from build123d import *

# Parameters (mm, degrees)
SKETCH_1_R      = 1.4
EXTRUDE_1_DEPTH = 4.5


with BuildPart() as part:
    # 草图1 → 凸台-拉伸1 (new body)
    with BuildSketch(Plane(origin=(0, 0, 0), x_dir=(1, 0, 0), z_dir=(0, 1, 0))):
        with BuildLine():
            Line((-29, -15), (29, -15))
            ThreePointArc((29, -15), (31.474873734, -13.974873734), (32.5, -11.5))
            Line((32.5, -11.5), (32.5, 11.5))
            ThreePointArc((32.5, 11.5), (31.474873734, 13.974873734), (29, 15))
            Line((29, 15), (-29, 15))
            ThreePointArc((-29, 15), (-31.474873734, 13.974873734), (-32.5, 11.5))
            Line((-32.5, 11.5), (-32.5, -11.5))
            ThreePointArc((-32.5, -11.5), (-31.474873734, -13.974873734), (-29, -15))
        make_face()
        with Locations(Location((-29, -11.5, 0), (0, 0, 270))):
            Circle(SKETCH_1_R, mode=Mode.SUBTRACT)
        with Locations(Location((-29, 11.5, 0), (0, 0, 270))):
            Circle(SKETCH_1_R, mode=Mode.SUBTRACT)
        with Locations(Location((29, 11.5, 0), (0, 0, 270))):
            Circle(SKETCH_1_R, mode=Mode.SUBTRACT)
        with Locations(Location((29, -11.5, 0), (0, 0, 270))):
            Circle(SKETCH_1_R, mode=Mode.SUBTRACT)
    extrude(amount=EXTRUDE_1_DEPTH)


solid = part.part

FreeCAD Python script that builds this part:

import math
import FreeCAD as App
import Part
import Sketcher

V = App.Vector
Q = App.Units.Quantity

doc = App.newDocument("Part")
params = doc.addObject("Spreadsheet::Sheet", "Params")
for row, (alias, value) in enumerate([
    ("sketch1_diameter", "2.8 mm"),
    ("sketch1_radius", "3.5 mm"),
    ("sketch1_width", "58 mm"),
    ("sketch1_height", "23 mm"),
    ("pad1_length", "4.5 mm"),
], start=1):
    params.set(f"A{row}", alias)
    params.set(f"B{row}", "=" + value)
    params.setAlias(f"B{row}", alias)

body = doc.addObject("PartDesign::Body", "Body")

sketch1 = body.newObject("Sketcher::SketchObject", "Sketch")
sketch1.AttachmentSupport = (doc.getObject("XZ_Plane"), [""])
sketch1.MapMode = "FlatFace"
sketch1.addGeometry(Part.LineSegment(V(-29, 15, 0), V(29, 15, 0)), False)
sketch1.addGeometry(Part.ArcOfCircle(Part.Circle(V(29, 11.5, 0), V(0, 0, 1), 3.5), math.radians(0), math.radians(90)), False)
sketch1.addGeometry(Part.LineSegment(V(32.5, 11.5, 0), V(32.5, -11.5, 0)), False)
sketch1.addGeometry(Part.ArcOfCircle(Part.Circle(V(29, -11.5, 0), V(0, 0, 1), 3.5), math.radians(-90), math.radians(0)), False)
sketch1.addGeometry(Part.LineSegment(V(29, -15, 0), V(-29, -15, 0)), False)
sketch1.addGeometry(Part.ArcOfCircle(Part.Circle(V(-29, -11.5, 0), V(0, 0, 1), 3.5), math.radians(-180), math.radians(-90)), False)
sketch1.addGeometry(Part.LineSegment(V(-32.5, -11.5, 0), V(-32.5, 11.5, 0)), False)
sketch1.addGeometry(Part.ArcOfCircle(Part.Circle(V(-29, 11.5, 0), V(0, 0, 1), 3.5), math.radians(90), math.radians(180)), False)
sketch1.addGeometry(Part.Circle(V(-29, 11.5, 0), V(0, 0, 1), 1.4), False)
sketch1.addGeometry(Part.Circle(V(29, 11.5, 0), V(0, 0, 1), 1.4), False)
sketch1.addGeometry(Part.Circle(V(-29, -11.5, 0), V(0, 0, 1), 1.4), False)
sketch1.addGeometry(Part.Circle(V(29, -11.5, 0), V(0, 0, 1), 1.4), False)
sketch1.addConstraint(Sketcher.Constraint("Tangent", 0, 2, 1, 2))
sketch1.addConstraint(Sketcher.Constraint("Tangent", 1, 1, 2, 1))
sketch1.addConstraint(Sketcher.Constraint("Tangent", 2, 2, 3, 2))
sketch1.addConstraint(Sketcher.Constraint("Tangent", 3, 1, 4, 1))
sketch1.addConstraint(Sketcher.Constraint("Tangent", 4, 2, 5, 2))
sketch1.addConstraint(Sketcher.Constraint("Tangent", 5, 1, 6, 1))
sketch1.addConstraint(Sketcher.Constraint("Tangent", 6, 2, 7, 2))
sketch1.addConstraint(Sketcher.Constraint("Tangent", 7, 1, 0, 1))
sketch1.addConstraint(Sketcher.Constraint("Horizontal", 0))
sketch1.addConstraint(Sketcher.Constraint("Vertical", 2))
sketch1.addConstraint(Sketcher.Constraint("Horizontal", 4))
sketch1.addConstraint(Sketcher.Constraint("Vertical", 6))
sketch1.addConstraint(Sketcher.Constraint("Coincident", 8, 3, 7, 3))
sketch1.addConstraint(Sketcher.Constraint("Coincident", 9, 3, 1, 3))
sketch1.addConstraint(Sketcher.Constraint("Coincident", 10, 3, 5, 3))
sketch1.addConstraint(Sketcher.Constraint("Coincident", 11, 3, 3, 3))
sketch1.addConstraint(Sketcher.Constraint("Equal", 1, 3))
sketch1.addConstraint(Sketcher.Constraint("Equal", 3, 5))
sketch1.addConstraint(Sketcher.Constraint("Equal", 5, 7))
sketch1.addConstraint(Sketcher.Constraint("Equal", 8, 9))
sketch1.addConstraint(Sketcher.Constraint("Equal", 9, 10))
sketch1.addConstraint(Sketcher.Constraint("Equal", 10, 11))
sketch1.addConstraint(Sketcher.Constraint("Symmetric", 1, 3, 5, 3, -1, 1))
sketch1.addConstraint(Sketcher.Constraint("Diameter", 8, Q("2.8 mm")))
sketch1.addConstraint(Sketcher.Constraint("Radius", 1, Q("3.5 mm")))
sketch1.addConstraint(Sketcher.Constraint("DistanceX", 0, 1, 0, 2, Q("58 mm")))
sketch1.addConstraint(Sketcher.Constraint("DistanceY", 2, 2, 2, 1, Q("23 mm")))
sketch1.setExpression("Constraints[23]", "Params.sketch1_diameter")
sketch1.setExpression("Constraints[24]", "Params.sketch1_radius")
sketch1.setExpression("Constraints[25]", "Params.sketch1_width")
sketch1.setExpression("Constraints[26]", "Params.sketch1_height")
pad1 = body.newObject("PartDesign::Pad", "Pad")
pad1.Profile = sketch1
pad1.setExpression("Length", "Params.pad1_length")
pad1.Reversed = True

doc.recompute()
